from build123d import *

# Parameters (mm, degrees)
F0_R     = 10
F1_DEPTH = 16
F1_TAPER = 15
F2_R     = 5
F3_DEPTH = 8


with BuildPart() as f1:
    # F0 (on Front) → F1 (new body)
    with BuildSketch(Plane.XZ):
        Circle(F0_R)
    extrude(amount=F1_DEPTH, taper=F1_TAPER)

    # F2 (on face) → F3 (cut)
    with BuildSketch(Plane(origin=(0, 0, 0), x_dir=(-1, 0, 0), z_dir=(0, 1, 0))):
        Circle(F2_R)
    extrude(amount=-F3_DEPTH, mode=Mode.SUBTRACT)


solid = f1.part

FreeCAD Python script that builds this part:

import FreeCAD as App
import Part
import Sketcher

V = App.Vector
Q = App.Units.Quantity

doc = App.newDocument("Part")
body = doc.addObject("PartDesign::Body", "Body")

# Sketch on XZ plane
sketch1 = doc.addObject("Sketcher::SketchObject", "Sketch")
body.addObject(sketch1)
sketch1.AttachmentSupport = (doc.XZ_Plane, [""])
sketch1.MapMode = "FlatFace"
sketch1.addGeometry(Part.Circle(V(0, 0, 0), V(0, 0, 1), 10), False)
sketch1.addConstraint([
    Sketcher.Constraint("Coincident", 0, 3, -1, 1),
    Sketcher.Constraint("Diameter", 0, Q("20 mm")),
])
pad1 = doc.addObject("PartDesign::Pad", "Pad")
body.addObject(pad1)
pad1.Profile = sketch1
pad1.Length = 16
pad1.TaperAngle = -15

# Sketch on XZ plane
sketch2 = doc.addObject("Sketcher::SketchObject", "Sketch001")
body.addObject(sketch2)
sketch2.AttachmentSupport = (doc.XZ_Plane, [""])
sketch2.MapMode = "FlatFace"
sketch2.addGeometry(Part.Circle(V(0, 0, 0), V(0, 0, 1), 5), False)
sketch2.addConstraint([
    Sketcher.Constraint("Coincident", 0, 3, -1, 1),
    Sketcher.Constraint("Diameter", 0, Q("10 mm")),
])
pocket1 = doc.addObject("PartDesign::Pocket", "Pocket")
body.addObject(pocket1)
pocket1.Profile = sketch2
pocket1.Length = 8
pocket1.Reversed = True

doc.recompute()
